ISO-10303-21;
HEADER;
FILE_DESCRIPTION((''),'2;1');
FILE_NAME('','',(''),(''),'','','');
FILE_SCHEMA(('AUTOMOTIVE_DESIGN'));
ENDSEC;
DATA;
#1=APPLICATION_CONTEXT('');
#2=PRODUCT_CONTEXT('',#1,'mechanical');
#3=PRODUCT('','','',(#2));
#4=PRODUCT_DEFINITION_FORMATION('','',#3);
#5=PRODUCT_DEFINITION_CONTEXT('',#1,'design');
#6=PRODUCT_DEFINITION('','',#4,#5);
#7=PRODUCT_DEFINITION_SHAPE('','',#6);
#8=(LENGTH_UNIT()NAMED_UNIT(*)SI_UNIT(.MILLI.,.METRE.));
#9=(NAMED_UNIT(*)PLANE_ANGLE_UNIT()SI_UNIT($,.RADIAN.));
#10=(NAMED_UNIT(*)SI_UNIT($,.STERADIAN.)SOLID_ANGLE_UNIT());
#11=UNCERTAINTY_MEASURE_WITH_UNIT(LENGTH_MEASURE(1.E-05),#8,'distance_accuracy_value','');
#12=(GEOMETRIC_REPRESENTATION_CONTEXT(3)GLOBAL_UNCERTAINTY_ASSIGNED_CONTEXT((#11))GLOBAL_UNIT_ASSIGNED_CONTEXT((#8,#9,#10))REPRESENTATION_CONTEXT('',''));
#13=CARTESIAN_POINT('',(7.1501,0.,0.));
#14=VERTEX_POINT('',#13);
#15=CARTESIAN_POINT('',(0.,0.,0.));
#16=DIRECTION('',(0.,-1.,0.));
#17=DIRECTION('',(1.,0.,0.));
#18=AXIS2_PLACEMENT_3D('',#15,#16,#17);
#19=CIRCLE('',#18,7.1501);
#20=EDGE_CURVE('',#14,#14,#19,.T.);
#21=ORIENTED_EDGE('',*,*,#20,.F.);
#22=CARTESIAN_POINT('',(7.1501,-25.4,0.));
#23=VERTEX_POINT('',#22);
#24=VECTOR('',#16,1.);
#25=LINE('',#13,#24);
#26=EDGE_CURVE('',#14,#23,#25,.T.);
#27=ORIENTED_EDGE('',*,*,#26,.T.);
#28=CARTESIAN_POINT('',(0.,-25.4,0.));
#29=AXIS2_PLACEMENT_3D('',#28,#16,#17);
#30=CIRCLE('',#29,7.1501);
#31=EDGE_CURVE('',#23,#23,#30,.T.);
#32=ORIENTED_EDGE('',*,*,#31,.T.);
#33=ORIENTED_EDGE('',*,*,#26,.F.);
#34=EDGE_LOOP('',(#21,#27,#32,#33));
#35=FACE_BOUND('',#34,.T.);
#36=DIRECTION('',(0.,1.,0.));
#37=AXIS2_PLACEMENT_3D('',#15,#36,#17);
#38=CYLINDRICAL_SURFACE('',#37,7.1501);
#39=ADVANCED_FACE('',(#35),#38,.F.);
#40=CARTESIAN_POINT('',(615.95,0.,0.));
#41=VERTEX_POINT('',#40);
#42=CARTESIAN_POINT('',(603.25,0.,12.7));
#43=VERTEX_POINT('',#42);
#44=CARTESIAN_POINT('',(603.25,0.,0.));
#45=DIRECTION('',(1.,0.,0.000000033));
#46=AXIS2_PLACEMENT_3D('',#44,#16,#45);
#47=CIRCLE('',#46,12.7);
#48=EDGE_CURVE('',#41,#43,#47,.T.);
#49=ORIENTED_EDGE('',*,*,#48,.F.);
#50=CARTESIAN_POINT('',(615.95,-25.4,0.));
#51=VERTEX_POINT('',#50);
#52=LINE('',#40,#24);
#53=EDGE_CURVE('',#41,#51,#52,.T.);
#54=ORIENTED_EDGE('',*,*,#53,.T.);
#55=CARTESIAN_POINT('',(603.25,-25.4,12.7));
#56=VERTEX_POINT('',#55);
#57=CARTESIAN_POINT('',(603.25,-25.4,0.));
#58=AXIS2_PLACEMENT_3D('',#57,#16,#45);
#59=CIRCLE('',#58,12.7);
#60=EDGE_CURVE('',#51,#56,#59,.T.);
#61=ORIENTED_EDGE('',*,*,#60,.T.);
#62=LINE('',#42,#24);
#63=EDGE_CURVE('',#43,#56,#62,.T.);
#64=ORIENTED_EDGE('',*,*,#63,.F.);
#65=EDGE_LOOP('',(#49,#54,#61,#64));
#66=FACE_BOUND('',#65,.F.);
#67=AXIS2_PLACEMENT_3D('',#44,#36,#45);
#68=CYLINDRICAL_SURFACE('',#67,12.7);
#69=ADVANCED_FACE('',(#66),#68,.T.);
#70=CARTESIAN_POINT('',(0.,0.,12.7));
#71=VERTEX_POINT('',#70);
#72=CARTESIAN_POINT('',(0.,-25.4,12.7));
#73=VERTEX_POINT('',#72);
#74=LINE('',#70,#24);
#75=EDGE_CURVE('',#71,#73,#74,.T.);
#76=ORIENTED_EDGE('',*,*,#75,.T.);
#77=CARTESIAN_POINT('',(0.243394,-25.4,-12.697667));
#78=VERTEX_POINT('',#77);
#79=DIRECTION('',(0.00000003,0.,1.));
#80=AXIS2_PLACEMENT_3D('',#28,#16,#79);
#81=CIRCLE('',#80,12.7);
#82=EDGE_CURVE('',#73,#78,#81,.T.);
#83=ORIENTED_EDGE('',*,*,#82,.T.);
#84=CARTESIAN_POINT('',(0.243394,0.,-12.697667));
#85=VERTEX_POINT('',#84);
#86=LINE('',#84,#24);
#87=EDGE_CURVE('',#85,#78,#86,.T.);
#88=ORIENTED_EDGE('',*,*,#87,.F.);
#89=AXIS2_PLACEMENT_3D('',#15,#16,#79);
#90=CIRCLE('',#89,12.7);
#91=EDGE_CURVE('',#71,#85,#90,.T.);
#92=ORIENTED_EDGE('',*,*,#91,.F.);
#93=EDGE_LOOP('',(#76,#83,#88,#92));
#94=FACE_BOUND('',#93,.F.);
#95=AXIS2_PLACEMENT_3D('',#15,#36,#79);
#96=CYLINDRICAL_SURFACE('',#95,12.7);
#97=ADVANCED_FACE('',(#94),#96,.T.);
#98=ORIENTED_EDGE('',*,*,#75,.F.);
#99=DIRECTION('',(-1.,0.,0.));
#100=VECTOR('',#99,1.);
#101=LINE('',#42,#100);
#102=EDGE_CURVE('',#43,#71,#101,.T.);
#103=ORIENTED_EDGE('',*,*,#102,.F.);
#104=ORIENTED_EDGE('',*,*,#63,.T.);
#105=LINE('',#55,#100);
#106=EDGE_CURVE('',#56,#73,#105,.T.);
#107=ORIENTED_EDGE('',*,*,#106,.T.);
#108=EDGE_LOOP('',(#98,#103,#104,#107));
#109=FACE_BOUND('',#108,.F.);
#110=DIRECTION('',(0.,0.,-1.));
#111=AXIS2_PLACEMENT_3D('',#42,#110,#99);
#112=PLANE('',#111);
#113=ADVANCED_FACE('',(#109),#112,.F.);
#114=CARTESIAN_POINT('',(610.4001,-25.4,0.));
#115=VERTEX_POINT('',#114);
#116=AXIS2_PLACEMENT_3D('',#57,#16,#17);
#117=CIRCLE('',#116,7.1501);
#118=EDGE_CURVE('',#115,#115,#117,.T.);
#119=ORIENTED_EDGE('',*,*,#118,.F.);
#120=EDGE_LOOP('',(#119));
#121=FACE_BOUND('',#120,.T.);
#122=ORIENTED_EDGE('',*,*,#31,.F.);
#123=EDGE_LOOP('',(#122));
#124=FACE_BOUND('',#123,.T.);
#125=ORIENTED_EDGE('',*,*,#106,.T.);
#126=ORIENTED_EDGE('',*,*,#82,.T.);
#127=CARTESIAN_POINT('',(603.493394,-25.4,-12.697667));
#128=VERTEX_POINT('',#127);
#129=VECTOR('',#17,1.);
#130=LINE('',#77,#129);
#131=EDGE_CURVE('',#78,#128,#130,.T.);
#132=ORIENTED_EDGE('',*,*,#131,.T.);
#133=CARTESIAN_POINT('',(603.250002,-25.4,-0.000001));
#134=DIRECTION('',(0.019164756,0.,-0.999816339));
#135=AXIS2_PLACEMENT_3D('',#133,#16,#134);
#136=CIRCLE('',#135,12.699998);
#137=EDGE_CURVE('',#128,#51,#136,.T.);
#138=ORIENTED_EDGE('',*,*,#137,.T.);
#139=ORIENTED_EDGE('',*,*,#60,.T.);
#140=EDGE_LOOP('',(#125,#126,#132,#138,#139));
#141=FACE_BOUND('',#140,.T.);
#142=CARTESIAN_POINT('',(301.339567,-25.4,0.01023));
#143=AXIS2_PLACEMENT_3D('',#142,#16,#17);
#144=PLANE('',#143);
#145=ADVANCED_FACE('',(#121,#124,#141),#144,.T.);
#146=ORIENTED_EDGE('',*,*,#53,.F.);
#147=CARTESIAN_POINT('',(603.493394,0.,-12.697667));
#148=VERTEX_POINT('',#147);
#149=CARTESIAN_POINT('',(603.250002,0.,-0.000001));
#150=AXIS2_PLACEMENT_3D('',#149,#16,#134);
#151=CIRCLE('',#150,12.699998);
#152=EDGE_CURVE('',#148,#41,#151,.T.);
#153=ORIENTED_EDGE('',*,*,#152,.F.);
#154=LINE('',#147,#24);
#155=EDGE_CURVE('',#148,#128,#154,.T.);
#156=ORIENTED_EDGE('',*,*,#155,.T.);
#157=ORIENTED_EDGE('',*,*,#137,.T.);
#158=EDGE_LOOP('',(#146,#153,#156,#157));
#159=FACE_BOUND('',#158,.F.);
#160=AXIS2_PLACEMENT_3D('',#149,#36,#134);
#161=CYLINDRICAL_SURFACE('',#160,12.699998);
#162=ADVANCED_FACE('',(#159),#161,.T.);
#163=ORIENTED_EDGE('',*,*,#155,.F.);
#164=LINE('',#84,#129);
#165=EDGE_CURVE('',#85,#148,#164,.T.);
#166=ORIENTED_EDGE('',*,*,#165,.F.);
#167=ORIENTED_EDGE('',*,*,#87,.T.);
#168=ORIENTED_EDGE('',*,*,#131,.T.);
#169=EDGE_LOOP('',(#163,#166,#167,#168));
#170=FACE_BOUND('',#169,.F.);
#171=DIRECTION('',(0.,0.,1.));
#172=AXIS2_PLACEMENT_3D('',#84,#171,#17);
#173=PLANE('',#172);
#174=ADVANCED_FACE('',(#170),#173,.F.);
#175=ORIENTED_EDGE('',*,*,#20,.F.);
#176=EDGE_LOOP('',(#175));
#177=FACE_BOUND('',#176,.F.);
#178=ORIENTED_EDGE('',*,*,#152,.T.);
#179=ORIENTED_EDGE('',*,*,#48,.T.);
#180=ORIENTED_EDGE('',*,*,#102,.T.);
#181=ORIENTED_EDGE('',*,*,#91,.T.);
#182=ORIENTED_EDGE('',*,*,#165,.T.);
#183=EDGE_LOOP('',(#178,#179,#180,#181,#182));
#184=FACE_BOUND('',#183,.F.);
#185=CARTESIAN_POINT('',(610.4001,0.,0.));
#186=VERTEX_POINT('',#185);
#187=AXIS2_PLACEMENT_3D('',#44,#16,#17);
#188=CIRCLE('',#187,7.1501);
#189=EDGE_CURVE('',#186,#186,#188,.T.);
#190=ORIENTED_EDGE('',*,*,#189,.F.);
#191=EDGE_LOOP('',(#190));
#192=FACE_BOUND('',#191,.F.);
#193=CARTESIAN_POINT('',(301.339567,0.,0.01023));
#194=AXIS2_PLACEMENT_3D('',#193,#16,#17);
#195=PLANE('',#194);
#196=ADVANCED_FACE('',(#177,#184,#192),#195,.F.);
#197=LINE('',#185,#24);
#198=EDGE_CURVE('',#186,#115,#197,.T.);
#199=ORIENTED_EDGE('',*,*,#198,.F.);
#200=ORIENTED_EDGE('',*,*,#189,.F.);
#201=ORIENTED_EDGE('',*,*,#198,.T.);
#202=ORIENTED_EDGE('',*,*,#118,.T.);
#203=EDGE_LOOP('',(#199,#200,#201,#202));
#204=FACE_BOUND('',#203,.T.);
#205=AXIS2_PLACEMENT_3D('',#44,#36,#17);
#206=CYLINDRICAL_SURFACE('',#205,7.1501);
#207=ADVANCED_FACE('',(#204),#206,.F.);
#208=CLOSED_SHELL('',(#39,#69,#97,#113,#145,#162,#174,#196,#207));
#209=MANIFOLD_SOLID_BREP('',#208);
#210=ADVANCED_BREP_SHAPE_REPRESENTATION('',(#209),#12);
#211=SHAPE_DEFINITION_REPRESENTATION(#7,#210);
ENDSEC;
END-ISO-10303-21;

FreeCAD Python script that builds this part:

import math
import FreeCAD as App
import Part
import Sketcher

V = App.Vector
Q = App.Units.Quantity

doc = App.newDocument("Part")
params = doc.addObject("Spreadsheet::Sheet", "Params")
for row, (alias, value) in enumerate([
    ("sketch1_radius", "0.4999999 in"),
    ("sketch1_diameter", "0.563 in"),
    ("sketch1_width", "23.75 in"),
    ("pad1_length", "1 in"),
], start=1):
    params.set(f"A{row}", alias)
    params.set(f"B{row}", "=" + value)
    params.setAlias(f"B{row}", alias)

body = doc.addObject("PartDesign::Body", "Body")

sketch1 = doc.addObject("Sketcher::SketchObject", "Sketch")
body.addObject(sketch1)
sketch1.AttachmentSupport = (doc.XZ_Plane, [""])
sketch1.MapMode = "FlatFace"
sketch1.addGeometry(Part.LineSegment(V(0.243394, -12.697667, 0), V(603.493394, -12.697667, 0)), False)
sketch1.addGeometry(Part.ArcOfCircle(Part.Circle(V(603.250002, -0.000001, 0), V(0, 0, 1), 12.699998), math.radians(-88.901873), math.radians(0.000005)), False)
sketch1.addGeometry(Part.ArcOfCircle(Part.Circle(V(603.25, 0, 0), V(0, 0, 1), 12.7), math.radians(0.000002), math.radians(89.999998)), False)
sketch1.addGeometry(Part.LineSegment(V(603.25, 12.7, 0), V(0, 12.7, 0)), False)
sketch1.addGeometry(Part.ArcOfCircle(Part.Circle(V(0, 0, 0), V(0, 0, 1), 12.7), math.radians(89.999998), math.radians(271.098136)), False)
sketch1.addGeometry(Part.Circle(V(0, 0, 0), V(0, 0, 1), 7.1501), False)
sketch1.addGeometry(Part.Circle(V(603.25, 0, 0), V(0, 0, 1), 7.1501), False)
sketch1.addConstraint(Sketcher.Constraint("Coincident", 0, 2, 1, 1))
sketch1.addConstraint(Sketcher.Constraint("Tangent", 1, 2, 2, 1))
sketch1.addConstraint(Sketcher.Constraint("Tangent", 2, 2, 3, 1))
sketch1.addConstraint(Sketcher.Constraint("Tangent", 3, 2, 4, 1))
sketch1.addConstraint(Sketcher.Constraint("Coincident", 4, 2, 0, 1))
sketch1.addConstraint(Sketcher.Constraint("Horizontal", 0))
sketch1.addConstraint(Sketcher.Constraint("Horizontal", 3))
sketch1.addConstraint(Sketcher.Constraint("Coincident", 4, 3, -1, 1))
sketch1.addConstraint(Sketcher.Constraint("Coincident", 5, 3, -1, 1))
sketch1.addConstraint(Sketcher.Constraint("Coincident", 6, 3, 1, 3))
sketch1.addConstraint(Sketcher.Constraint("Equal", 2, 4))
sketch1.addConstraint(Sketcher.Constraint("Equal", 5, 6))
sketch1.addConstraint(Sketcher.Constraint("PointOnObject", 1, 2, -1))
sketch1.addConstraint(Sketcher.Constraint("Vertical", 6, 3, 2, 2))
sketch1.addConstraint(Sketcher.Constraint("Radius", 1, Q("0.4999999 in")))
sketch1.addConstraint(Sketcher.Constraint("Diameter", 5, Q("0.563 in")))
sketch1.addConstraint(Sketcher.Constraint("DistanceX", 0, 1, 0, 2, Q("23.75 in")))
sketch1.addConstraint(Sketcher.Constraint("DistanceX", -1, 1, 0, 2, Q("603.493394 mm")))
sketch1.setExpression("Constraints[14]", "Params.sketch1_radius")
sketch1.setExpression("Constraints[15]", "Params.sketch1_diameter")
sketch1.setExpression("Constraints[16]", "Params.sketch1_width")
pad1 = doc.addObject("PartDesign::Pad", "Pad")
body.addObject(pad1)
pad1.Profile = sketch1
pad1.setExpression("Length", "Params.pad1_length")

doc.recompute()
